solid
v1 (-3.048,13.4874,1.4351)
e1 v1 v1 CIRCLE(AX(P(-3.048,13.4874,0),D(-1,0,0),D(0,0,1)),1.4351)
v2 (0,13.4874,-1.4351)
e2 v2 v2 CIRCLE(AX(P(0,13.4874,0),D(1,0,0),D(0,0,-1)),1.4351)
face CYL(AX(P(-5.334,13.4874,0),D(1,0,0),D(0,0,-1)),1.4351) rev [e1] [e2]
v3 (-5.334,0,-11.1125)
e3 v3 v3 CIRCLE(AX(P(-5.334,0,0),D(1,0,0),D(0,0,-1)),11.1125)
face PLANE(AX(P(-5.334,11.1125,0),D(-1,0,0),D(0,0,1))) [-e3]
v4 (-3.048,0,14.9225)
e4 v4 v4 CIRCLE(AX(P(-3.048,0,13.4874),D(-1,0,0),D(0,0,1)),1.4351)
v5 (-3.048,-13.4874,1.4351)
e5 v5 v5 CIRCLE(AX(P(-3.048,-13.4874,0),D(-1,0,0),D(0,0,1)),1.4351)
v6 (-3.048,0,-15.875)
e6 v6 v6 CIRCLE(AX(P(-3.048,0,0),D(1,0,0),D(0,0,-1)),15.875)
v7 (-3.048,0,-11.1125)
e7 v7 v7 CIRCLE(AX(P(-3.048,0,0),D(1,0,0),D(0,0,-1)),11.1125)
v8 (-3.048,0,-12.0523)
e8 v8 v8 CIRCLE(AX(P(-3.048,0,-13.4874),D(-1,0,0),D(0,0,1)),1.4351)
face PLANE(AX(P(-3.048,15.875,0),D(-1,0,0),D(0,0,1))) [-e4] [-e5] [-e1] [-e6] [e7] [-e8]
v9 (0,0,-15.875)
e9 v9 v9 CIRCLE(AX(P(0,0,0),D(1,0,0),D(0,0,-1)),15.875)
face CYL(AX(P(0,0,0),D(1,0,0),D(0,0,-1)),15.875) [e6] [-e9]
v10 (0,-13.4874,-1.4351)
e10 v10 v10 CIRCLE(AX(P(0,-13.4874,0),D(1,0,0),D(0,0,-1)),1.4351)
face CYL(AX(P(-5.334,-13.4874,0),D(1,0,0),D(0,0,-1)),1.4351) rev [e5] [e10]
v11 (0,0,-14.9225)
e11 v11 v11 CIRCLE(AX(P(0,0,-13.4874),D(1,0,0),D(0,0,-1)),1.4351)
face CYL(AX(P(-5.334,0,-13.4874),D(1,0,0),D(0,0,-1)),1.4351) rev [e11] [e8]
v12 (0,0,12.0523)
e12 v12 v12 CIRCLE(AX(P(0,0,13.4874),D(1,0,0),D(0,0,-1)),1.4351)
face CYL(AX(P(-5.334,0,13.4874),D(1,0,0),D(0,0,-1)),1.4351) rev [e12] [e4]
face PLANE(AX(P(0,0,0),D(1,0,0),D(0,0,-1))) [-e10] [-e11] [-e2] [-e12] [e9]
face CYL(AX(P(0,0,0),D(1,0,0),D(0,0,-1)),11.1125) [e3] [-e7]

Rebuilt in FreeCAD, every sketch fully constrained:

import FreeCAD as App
import Part
import Sketcher
Q = App.Units.Quantity


def add_polygon(sketch, points):
    """Adds a closed chain of lines whose ends are joined by coincident constraints."""
    first, n = sketch.GeometryCount, len(points)
    for a, b in zip(points, points[1:] + points[:1]):
        sketch.addGeometry(Part.LineSegment(App.Vector(*a, 0), App.Vector(*b, 0)), False)
    for i in range(n):
        sketch.addConstraint(Sketcher.Constraint("Coincident", first + i, 2, first + (i + 1) % n, 1))

doc = App.newDocument("Part")
params = doc.addObject("Spreadsheet::Sheet", "Params")
for row, (alias, value) in enumerate([
    ("sketch1_width", "0.12 in"),
    ("sketch1_width2", "0.09 in"),
    ("sketch1_height", "0.625 in"),
    ("sketch1_height2", "0.1875 in"),
    ("revolution_angle", "360 deg"),
    ("sketch2_diameter", "0.113 in"),
], start=1):
    params.set(f"A{row}", alias)
    params.set(f"B{row}", "=" + value)
    params.setAlias(f"B{row}", alias)

body = doc.addObject("PartDesign::Body", "Body")

# Sketch on XY plane
sketch1 = body.newObject("Sketcher::SketchObject", "Sketch")
sketch1.AttachmentSupport = (doc.getObject("XY_Plane"), [""])
sketch1.MapMode = "FlatFace"
add_polygon(sketch1, [(0, 0), (0, 15.9), (-3, 15.9), (-3, 11.1), (-5.3, 11.1), (-5.3, 0)])  # lines 0-5
sketch1.addConstraint([
    Sketcher.Constraint("Vertical", 0),
    Sketcher.Constraint("Horizontal", 1),
    Sketcher.Constraint("Vertical", 2),
    Sketcher.Constraint("Horizontal", 3),
    Sketcher.Constraint("Vertical", 4),
    Sketcher.Constraint("Horizontal", 5),
    Sketcher.Constraint("Coincident", 5, 2, -1, 1),
    Sketcher.Constraint("DistanceX", 1, 2, 1, 1, Q("0.12 in")),
    Sketcher.Constraint("DistanceX", 3, 2, 3, 1, Q("0.09 in")),
    Sketcher.Constraint("DistanceY", 0, 1, 0, 2, Q("0.625 in")),
    Sketcher.Constraint("DistanceY", 2, 2, 2, 1, Q("0.1875 in")),
])
sketch1.setExpression("Constraints[13]", "Params.sketch1_width")
sketch1.setExpression("Constraints[14]", "Params.sketch1_width2")
sketch1.setExpression("Constraints[15]", "Params.sketch1_height")
sketch1.setExpression("Constraints[16]", "Params.sketch1_height2")
revolution = body.newObject("PartDesign::Revolution", "Revolution")
revolution.Profile = sketch1
revolution.ReferenceAxis = (sketch1, ["H_Axis"])
revolution.setExpression("Angle", "Params.revolution_angle")

# Sketch on YZ plane
sketch2 = body.newObject("Sketcher::SketchObject", "Sketch001")
sketch2.AttachmentSupport = (doc.getObject("YZ_Plane"), [""])
sketch2.MapMode = "FlatFace"
sketch2.addGeometry([
    Part.Circle(App.Vector(13.5, 0, 0), App.Vector(0, 0, 1), 1.4),
    Part.Circle(App.Vector(0, -13.5, 0), App.Vector(0, 0, 1), 1.4),
    Part.Circle(App.Vector(-13.5, 0, 0), App.Vector(0, 0, 1), 1.4),
    Part.Circle(App.Vector(0, 13.5, 0), App.Vector(0, 0, 1), 1.4),
], False)
sketch2.addConstraint([
    Sketcher.Constraint("Equal", 0, 1),
    Sketcher.Constraint("Equal", 1, 2),
    Sketcher.Constraint("Equal", 2, 3),
    Sketcher.Constraint("Symmetric", 0, 3, 2, 3, -1, 1),
    Sketcher.Constraint("Symmetric", 1, 3, 3, 3, -1, 1),
    Sketcher.Constraint("PointOnObject", 0, 3, -1),
    Sketcher.Constraint("PointOnObject", 1, 3, -2),
    Sketcher.Constraint("Diameter", 0, Q("0.113 in")),
    Sketcher.Constraint("DistanceX", -1, 1, 0, 3, Q("0.531 in")),
    Sketcher.Constraint("DistanceY", 1, 3, -1, 1, Q("0.531 in")),
])
sketch2.setExpression("Constraints[7]", "Params.sketch2_diameter")
pocket1 = body.newObject("PartDesign::Pocket", "Pocket")
pocket1.Profile = sketch2
pocket1.Type = "ThroughAll"

doc.recompute()
